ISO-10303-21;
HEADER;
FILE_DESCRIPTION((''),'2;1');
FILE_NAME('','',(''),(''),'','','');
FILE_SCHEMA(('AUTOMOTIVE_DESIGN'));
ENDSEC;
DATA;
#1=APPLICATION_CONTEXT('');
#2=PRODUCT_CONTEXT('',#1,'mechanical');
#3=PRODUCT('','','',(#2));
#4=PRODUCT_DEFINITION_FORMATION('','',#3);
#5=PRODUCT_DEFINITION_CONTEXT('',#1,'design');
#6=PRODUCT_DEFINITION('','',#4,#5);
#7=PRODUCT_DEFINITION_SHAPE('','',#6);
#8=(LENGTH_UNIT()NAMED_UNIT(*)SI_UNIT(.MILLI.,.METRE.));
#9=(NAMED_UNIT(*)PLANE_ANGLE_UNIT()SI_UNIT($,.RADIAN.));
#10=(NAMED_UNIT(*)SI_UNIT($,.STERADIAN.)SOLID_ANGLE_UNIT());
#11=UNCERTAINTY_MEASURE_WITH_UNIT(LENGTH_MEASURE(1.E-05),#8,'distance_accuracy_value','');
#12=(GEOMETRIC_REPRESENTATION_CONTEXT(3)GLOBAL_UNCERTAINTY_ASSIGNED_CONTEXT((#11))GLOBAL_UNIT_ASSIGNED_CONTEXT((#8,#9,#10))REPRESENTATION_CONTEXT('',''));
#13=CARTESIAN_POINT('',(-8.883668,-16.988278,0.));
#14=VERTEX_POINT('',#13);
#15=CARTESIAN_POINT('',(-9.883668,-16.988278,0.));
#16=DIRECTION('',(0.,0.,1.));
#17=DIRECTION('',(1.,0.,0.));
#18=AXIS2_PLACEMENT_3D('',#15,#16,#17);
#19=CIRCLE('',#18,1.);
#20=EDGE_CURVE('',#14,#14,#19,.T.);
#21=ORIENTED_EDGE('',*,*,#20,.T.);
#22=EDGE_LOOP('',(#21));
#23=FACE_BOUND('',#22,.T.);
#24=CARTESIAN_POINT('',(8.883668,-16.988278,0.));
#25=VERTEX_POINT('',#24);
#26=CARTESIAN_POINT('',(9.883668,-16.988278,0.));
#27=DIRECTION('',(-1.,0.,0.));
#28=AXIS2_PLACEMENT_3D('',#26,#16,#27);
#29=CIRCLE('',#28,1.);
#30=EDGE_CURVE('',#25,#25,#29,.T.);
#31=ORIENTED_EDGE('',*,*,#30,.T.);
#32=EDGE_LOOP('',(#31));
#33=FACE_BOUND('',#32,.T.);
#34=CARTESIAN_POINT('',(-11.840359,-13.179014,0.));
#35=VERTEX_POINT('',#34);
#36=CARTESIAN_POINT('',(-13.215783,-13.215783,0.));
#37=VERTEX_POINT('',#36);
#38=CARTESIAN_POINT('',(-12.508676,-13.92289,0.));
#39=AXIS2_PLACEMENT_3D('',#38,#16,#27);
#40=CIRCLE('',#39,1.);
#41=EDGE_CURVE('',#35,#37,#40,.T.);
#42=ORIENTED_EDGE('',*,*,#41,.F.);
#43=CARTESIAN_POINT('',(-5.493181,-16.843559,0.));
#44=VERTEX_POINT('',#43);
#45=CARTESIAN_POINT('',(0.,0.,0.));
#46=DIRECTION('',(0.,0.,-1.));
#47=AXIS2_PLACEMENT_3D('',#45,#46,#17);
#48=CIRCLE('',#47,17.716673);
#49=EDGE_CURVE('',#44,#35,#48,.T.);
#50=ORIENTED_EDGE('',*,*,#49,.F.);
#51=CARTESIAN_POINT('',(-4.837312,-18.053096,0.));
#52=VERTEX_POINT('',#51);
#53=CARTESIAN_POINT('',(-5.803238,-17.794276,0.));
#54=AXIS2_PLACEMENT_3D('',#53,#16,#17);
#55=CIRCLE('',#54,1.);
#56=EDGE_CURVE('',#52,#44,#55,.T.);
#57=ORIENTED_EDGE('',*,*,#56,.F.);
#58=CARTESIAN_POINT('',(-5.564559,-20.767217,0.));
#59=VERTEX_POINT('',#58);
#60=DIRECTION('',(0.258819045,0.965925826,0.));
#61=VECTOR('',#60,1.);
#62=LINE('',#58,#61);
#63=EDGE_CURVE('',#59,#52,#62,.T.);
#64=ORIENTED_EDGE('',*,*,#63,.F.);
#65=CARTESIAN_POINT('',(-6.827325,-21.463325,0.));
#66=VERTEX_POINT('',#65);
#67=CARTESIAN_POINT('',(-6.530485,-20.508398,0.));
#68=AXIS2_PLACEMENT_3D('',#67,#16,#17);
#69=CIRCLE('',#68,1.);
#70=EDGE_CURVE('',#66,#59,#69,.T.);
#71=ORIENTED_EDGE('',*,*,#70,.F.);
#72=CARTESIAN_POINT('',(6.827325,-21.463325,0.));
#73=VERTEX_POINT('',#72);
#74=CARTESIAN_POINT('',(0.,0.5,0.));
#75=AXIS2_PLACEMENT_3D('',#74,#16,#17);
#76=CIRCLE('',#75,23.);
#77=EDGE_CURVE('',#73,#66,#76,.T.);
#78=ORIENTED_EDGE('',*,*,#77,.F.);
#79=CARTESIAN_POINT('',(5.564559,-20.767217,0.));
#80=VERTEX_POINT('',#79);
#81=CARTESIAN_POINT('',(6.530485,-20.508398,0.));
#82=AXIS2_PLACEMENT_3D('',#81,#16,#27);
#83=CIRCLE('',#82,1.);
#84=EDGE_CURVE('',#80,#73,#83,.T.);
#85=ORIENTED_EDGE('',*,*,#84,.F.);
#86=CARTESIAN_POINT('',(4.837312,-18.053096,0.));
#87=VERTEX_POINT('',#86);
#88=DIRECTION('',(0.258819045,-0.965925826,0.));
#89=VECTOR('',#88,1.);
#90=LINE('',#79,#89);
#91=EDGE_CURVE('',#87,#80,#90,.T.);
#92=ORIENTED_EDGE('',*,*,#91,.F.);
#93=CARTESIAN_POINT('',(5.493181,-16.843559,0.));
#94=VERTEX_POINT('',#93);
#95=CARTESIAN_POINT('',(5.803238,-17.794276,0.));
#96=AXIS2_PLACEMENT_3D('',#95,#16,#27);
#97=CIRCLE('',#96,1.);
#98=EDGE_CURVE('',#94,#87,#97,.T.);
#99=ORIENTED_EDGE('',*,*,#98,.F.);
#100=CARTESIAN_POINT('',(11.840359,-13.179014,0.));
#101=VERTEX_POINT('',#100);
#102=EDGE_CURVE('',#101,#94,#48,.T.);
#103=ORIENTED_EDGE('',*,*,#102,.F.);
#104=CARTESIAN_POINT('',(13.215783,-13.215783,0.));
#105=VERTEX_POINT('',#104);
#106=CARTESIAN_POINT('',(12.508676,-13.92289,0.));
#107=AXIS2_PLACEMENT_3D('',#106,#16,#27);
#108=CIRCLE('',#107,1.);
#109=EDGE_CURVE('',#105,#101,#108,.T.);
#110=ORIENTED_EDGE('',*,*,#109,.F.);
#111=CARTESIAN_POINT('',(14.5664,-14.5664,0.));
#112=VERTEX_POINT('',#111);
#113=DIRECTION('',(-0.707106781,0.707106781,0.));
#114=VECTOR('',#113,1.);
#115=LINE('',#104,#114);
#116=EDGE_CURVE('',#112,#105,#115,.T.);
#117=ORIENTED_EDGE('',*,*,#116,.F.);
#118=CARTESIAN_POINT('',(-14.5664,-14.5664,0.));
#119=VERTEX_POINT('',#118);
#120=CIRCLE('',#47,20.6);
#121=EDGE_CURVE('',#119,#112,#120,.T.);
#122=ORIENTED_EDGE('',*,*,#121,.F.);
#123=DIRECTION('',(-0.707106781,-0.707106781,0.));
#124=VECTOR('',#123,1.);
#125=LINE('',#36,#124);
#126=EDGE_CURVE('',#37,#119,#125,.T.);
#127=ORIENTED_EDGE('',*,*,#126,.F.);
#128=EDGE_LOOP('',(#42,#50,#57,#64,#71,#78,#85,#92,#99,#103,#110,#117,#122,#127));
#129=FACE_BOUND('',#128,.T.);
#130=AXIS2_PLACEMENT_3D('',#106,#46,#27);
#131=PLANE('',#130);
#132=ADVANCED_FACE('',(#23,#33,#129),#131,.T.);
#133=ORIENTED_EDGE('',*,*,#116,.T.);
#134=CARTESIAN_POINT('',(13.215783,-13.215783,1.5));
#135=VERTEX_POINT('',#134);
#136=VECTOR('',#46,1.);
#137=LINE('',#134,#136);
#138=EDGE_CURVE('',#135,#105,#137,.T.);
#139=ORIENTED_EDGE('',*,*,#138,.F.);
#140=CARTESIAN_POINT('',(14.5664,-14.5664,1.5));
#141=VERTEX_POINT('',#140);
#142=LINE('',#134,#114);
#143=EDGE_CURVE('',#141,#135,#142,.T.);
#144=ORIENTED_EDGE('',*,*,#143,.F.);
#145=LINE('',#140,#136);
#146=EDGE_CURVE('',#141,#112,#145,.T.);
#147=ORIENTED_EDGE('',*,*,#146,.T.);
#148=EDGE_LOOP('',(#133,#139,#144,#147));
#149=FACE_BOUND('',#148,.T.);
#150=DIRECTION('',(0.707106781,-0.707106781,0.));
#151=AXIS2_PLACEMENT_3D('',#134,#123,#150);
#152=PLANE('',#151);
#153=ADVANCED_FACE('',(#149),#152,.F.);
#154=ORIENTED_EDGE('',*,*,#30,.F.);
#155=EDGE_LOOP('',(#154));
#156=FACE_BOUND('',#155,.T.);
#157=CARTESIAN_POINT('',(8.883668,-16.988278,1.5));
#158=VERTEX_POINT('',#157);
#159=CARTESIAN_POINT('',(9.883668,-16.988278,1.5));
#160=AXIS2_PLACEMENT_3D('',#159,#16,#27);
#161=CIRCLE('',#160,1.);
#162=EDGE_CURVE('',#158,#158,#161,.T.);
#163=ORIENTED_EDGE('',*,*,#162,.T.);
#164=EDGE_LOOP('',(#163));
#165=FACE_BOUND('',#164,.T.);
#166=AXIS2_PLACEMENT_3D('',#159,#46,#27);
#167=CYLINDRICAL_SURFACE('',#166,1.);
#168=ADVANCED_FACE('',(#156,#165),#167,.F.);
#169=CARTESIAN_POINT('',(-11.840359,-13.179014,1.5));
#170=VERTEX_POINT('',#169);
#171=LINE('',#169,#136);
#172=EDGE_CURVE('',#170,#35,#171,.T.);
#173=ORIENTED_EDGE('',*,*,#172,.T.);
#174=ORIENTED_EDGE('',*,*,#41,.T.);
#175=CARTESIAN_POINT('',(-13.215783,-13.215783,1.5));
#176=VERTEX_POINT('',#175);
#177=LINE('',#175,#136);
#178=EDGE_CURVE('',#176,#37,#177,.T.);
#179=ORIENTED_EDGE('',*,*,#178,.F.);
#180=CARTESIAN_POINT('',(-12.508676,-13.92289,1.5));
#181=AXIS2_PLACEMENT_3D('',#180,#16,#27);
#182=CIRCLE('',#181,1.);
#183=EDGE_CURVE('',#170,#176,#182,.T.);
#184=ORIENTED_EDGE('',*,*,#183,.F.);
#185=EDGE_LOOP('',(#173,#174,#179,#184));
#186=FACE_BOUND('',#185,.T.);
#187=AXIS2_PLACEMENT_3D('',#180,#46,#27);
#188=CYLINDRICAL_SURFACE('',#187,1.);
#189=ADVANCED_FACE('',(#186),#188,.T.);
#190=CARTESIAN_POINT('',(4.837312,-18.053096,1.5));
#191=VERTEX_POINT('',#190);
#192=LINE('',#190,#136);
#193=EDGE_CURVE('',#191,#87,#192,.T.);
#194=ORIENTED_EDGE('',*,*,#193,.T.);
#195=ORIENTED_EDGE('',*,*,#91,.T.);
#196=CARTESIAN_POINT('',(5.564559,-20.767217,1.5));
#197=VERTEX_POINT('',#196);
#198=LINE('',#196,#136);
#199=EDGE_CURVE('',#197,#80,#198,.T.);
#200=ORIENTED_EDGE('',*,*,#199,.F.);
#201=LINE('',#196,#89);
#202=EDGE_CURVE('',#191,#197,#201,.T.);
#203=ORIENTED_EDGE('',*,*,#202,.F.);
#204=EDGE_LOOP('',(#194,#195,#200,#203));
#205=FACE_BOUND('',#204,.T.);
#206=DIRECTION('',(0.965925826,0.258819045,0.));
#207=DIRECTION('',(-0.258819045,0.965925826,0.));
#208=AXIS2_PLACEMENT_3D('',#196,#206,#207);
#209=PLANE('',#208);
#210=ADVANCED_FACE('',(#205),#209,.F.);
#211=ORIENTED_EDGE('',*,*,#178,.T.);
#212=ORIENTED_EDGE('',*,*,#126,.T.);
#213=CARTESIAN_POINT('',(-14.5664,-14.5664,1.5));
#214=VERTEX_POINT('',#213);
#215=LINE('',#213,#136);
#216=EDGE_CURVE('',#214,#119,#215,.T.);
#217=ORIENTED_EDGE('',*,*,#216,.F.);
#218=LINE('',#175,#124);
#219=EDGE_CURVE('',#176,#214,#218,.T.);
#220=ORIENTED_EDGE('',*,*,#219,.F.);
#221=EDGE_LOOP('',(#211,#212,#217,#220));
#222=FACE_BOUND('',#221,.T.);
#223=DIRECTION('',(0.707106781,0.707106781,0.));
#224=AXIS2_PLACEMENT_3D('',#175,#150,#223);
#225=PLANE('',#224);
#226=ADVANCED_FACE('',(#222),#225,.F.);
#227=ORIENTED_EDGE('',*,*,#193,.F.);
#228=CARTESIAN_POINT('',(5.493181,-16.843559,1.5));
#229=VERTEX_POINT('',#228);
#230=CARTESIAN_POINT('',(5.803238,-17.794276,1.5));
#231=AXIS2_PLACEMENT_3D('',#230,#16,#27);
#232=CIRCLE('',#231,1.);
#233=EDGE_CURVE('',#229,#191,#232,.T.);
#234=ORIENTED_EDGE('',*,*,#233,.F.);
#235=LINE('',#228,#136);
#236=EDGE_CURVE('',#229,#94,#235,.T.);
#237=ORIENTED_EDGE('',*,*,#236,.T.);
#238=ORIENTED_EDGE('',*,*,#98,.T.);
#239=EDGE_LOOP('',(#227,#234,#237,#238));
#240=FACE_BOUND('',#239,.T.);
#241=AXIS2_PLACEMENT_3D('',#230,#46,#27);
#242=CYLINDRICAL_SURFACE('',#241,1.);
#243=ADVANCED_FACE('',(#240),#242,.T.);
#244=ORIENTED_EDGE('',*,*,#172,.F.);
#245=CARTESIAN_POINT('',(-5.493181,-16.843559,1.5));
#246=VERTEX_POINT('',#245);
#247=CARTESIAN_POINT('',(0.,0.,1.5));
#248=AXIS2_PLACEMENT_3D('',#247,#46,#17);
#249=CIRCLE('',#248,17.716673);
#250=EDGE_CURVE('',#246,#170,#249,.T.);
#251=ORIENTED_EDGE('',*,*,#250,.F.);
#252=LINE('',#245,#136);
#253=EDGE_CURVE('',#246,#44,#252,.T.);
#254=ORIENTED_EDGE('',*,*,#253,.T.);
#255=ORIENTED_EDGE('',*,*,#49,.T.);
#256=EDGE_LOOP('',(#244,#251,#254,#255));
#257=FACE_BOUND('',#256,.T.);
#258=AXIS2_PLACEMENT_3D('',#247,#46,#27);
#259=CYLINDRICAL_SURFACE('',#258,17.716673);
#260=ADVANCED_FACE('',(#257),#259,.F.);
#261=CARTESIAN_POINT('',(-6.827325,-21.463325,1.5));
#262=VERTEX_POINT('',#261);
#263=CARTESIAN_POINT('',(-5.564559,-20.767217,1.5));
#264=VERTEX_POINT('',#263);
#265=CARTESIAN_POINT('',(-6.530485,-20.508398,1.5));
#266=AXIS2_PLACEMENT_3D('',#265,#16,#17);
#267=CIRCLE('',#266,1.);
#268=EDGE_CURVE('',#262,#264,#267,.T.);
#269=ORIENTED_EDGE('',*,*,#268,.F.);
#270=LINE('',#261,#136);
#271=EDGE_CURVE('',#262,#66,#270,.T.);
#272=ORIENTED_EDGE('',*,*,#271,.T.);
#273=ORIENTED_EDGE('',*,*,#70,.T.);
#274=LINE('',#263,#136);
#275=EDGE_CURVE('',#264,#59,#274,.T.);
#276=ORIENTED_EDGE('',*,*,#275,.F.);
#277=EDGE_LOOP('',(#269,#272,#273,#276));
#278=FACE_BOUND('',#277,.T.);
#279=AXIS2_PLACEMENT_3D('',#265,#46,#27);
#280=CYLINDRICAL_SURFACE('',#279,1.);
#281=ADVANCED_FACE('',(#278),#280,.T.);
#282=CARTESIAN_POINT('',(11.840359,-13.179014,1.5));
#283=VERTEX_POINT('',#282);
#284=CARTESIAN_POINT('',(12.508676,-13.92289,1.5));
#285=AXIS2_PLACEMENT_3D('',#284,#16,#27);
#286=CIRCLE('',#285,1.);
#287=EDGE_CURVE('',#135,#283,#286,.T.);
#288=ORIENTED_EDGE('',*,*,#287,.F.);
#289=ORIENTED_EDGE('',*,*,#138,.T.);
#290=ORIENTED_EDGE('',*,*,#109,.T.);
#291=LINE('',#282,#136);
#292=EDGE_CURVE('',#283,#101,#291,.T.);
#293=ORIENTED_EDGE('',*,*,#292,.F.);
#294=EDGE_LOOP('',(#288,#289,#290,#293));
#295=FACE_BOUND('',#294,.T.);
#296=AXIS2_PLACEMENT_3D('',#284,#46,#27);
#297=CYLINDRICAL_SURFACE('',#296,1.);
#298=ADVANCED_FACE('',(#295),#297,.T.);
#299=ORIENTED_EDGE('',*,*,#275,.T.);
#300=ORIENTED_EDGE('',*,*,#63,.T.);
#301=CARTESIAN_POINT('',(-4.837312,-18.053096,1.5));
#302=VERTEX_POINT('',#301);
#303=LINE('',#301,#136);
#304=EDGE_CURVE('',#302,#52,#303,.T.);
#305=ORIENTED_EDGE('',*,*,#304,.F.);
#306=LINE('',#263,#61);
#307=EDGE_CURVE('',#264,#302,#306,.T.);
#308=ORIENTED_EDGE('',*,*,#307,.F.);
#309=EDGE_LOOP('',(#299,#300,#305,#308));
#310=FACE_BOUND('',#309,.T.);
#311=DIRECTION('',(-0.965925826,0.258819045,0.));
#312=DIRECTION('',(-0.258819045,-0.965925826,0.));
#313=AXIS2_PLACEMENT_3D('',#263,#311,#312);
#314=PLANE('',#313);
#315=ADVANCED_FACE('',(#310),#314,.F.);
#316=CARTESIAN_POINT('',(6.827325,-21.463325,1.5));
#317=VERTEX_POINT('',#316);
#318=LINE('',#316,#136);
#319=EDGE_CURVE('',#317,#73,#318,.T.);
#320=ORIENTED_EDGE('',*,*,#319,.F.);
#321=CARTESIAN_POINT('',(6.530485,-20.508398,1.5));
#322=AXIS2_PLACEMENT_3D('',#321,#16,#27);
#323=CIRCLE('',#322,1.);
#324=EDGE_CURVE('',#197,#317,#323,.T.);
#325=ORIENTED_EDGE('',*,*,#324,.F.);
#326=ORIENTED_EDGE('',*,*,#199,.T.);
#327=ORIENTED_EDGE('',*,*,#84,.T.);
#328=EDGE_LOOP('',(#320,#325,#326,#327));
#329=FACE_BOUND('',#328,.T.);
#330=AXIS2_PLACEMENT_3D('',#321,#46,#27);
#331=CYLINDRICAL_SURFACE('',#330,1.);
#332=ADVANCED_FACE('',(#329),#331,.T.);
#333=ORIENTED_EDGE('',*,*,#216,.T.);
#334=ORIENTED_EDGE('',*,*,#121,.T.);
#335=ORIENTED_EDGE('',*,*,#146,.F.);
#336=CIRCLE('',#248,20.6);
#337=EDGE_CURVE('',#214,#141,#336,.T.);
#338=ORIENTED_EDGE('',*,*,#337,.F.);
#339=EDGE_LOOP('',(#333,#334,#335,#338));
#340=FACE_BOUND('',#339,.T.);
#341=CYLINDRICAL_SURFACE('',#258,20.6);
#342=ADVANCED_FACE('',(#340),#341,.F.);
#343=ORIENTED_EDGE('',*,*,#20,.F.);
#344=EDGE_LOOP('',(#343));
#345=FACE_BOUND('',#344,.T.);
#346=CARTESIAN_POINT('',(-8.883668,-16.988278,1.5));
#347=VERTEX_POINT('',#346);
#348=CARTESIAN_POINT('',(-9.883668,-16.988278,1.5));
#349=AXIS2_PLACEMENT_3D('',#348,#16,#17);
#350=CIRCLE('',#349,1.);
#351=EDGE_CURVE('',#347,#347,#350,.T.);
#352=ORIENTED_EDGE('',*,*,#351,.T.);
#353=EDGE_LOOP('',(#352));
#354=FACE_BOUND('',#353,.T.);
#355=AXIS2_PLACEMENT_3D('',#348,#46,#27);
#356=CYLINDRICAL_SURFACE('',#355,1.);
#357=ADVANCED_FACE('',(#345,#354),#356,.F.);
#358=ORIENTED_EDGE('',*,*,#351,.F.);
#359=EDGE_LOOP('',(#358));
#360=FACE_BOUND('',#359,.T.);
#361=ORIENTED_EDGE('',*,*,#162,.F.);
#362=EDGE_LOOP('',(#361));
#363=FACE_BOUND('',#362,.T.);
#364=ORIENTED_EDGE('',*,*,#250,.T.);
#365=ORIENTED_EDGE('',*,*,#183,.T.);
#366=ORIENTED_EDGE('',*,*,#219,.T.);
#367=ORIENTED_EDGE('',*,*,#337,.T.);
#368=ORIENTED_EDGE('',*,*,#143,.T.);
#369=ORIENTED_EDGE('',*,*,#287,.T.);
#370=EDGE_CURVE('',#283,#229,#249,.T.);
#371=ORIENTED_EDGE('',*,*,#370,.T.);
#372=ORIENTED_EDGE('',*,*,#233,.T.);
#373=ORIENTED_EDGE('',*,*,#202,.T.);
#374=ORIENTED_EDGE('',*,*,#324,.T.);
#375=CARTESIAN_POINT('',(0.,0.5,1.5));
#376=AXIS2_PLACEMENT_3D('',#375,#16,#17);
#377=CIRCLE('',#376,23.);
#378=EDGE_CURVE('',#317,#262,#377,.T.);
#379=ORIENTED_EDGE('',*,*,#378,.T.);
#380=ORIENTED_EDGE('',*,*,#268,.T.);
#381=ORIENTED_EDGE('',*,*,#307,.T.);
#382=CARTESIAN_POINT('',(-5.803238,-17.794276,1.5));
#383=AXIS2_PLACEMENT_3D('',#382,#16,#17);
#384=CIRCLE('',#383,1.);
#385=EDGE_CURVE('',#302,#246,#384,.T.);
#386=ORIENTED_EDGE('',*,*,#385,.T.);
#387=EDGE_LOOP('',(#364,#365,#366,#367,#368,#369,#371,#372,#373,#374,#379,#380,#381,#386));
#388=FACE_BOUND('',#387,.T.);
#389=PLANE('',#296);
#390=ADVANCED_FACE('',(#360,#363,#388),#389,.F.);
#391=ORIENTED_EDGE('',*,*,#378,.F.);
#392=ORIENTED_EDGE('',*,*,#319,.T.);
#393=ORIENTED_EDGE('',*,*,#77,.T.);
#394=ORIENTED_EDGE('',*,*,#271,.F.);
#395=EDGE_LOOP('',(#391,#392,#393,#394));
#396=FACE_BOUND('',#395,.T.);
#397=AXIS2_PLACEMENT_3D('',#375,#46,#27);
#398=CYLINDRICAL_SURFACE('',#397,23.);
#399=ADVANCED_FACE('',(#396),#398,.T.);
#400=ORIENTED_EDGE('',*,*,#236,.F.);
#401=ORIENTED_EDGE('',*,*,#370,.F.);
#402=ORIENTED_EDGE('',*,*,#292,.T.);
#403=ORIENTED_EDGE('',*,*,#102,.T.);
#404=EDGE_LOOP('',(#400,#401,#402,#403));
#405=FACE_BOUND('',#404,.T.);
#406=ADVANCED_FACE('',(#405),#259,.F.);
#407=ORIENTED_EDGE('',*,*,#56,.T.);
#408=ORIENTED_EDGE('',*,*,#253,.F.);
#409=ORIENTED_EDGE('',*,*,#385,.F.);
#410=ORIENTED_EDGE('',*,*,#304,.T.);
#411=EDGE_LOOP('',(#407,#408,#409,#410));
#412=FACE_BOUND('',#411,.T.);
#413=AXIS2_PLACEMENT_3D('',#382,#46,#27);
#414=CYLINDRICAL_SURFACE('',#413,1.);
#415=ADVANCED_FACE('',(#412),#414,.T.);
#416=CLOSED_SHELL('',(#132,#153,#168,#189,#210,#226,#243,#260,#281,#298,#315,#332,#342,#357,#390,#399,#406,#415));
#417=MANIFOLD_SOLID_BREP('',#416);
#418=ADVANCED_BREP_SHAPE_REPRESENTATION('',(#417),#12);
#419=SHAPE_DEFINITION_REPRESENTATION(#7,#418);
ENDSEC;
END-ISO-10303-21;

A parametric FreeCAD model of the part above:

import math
import FreeCAD as App
import Part
import Sketcher

V = App.Vector
Q = App.Units.Quantity

doc = App.newDocument("Part")
body = doc.addObject("PartDesign::Body", "Body")

sketch1 = body.newObject("Sketcher::SketchObject", "Sketch")
sketch1.AttachmentSupport = (doc.getObject("XY_Plane"), [""])
sketch1.MapMode = "FlatFace"
sketch1.addGeometry(Part.LineSegment(V(4.8, -18.1, 0), V(5.6, -20.8, 0)), False)
sketch1.addGeometry(Part.ArcOfCircle(Part.Circle(V(6.5, -20.5, 0), V(0, 0, 1), 1), math.radians(-165), math.radians(-73)), False)
sketch1.addGeometry(Part.ArcOfCircle(Part.Circle(V(0, 0.5, 0), V(0, 0, 1), 23), math.radians(-73), math.radians(253)), False)
sketch1.addGeometry(Part.ArcOfCircle(Part.Circle(V(-6.5, -20.5, 0), V(0, 0, 1), 1), math.radians(-107), math.radians(-15)), False)
sketch1.addGeometry(Part.LineSegment(V(-5.6, -20.8, 0), V(-4.8, -18.1, 0)), False)
sketch1.addGeometry(Part.ArcOfCircle(Part.Circle(V(-5.8, -17.8, 0), V(0, 0, 1), 1), math.radians(-15), math.radians(72)), False)
sketch1.addGeometry(Part.ArcOfCircle(Part.Circle(V(0, 0, 0), V(0, 0, 1), 17.7), math.radians(-132), math.radians(-108)), False)
sketch1.addGeometry(Part.ArcOfCircle(Part.Circle(V(-12.5, -13.9, 0), V(0, 0, 1), 1), math.radians(48), math.radians(135)), False)
sketch1.addGeometry(Part.LineSegment(V(-13.2, -13.2, 0), V(-14.6, -14.6, 0)), False)
sketch1.addGeometry(Part.ArcOfCircle(Part.Circle(V(0, 0, 0), V(0, 0, 1), 20.6), math.radians(-45), math.radians(225)), False)
sketch1.addGeometry(Part.LineSegment(V(14.6, -14.6, 0), V(13.2, -13.2, 0)), False)
sketch1.addGeometry(Part.ArcOfCircle(Part.Circle(V(12.5, -13.9, 0), V(0, 0, 1), 1), math.radians(45), math.radians(132)), False)
sketch1.addGeometry(Part.ArcOfCircle(Part.Circle(V(0, 0, 0), V(0, 0, 1), 17.7), math.radians(-72), math.radians(-48)), False)
sketch1.addGeometry(Part.ArcOfCircle(Part.Circle(V(5.8, -17.8, 0), V(0, 0, 1), 1), math.radians(108), math.radians(195)), False)
sketch1.addGeometry(Part.Circle(V(9.9, -17, 0), V(0, 0, 1), 1), False)
sketch1.addGeometry(Part.Circle(V(-9.9, -17, 0), V(0, 0, 1), 1), False)
sketch1.addConstraint(Sketcher.Constraint("Tangent", 0, 2, 1, 1))
sketch1.addConstraint(Sketcher.Constraint("Tangent", 1, 2, 2, 1))
sketch1.addConstraint(Sketcher.Constraint("Tangent", 2, 2, 3, 1))
sketch1.addConstraint(Sketcher.Constraint("Tangent", 3, 2, 4, 1))
sketch1.addConstraint(Sketcher.Constraint("Tangent", 4, 2, 5, 1))
sketch1.addConstraint(Sketcher.Constraint("Tangent", 5, 2, 6, 2))
sketch1.addConstraint(Sketcher.Constraint("Tangent", 6, 1, 7, 1))
sketch1.addConstraint(Sketcher.Constraint("Tangent", 7, 2, 8, 1))
sketch1.addConstraint(Sketcher.Constraint("Coincident", 8, 2, 9, 2))
sketch1.addConstraint(Sketcher.Constraint("Coincident", 9, 1, 10, 1))
sketch1.addConstraint(Sketcher.Constraint("Tangent", 10, 2, 11, 1))
sketch1.addConstraint(Sketcher.Constraint("Tangent", 11, 2, 12, 2))
sketch1.addConstraint(Sketcher.Constraint("Tangent", 12, 1, 13, 1))
sketch1.addConstraint(Sketcher.Constraint("Tangent", 13, 2, 0, 1))
sketch1.addConstraint(Sketcher.Constraint("Coincident", 6, 3, -1, 1))
sketch1.addConstraint(Sketcher.Constraint("Coincident", 9, 3, -1, 1))
sketch1.addConstraint(Sketcher.Constraint("Coincident", 12, 3, -1, 1))
sketch1.addConstraint(Sketcher.Constraint("Equal", 1, 3))
sketch1.addConstraint(Sketcher.Constraint("Equal", 3, 5))
sketch1.addConstraint(Sketcher.Constraint("Equal", 5, 7))
sketch1.addConstraint(Sketcher.Constraint("Equal", 7, 11))
sketch1.addConstraint(Sketcher.Constraint("Equal", 6, 12))
sketch1.addConstraint(Sketcher.Constraint("Equal", 11, 13))
sketch1.addConstraint(Sketcher.Constraint("Equal", 13, 14))
sketch1.addConstraint(Sketcher.Constraint("Equal", 14, 15))
sketch1.addConstraint(Sketcher.Constraint("Symmetric", 1, 3, 3, 3, -2))
sketch1.addConstraint(Sketcher.Constraint("Symmetric", 14, 3, 15, 3, -2))
sketch1.addConstraint(Sketcher.Constraint("Symmetric", 7, 2, 10, 2, -2))
sketch1.addConstraint(Sketcher.Constraint("Perpendicular", 8, 10))
sketch1.addConstraint(Sketcher.Constraint("Horizontal", 5, 3, 13, 3))
sketch1.addConstraint(Sketcher.Constraint("Diameter", 14, Q("2 mm")))
sketch1.addConstraint(Sketcher.Constraint("Radius", 2, Q("23 mm")))
sketch1.addConstraint(Sketcher.Constraint("Radius", 9, Q("20.6 mm")))
sketch1.addConstraint(Sketcher.Constraint("Angle", 0, Q("-75 deg")))
sketch1.addConstraint(Sketcher.Constraint("DistanceY", -1, 1, 2, 3, Q("0.5 mm")))
sketch1.addConstraint(Sketcher.Constraint("Radius", 6, Q("17.716673 mm")))
sketch1.addConstraint(Sketcher.Constraint("DistanceY", 13, 3, 14, 3, Q("0.805999 mm")))
sketch1.addConstraint(Sketcher.Constraint("DistanceX", 8, 2, -1, 1, Q("14.5664 mm")))
sketch1.addConstraint(Sketcher.Constraint("DistanceX", 1, 3, 10, 2, Q("6.685298 mm")))
sketch1.addConstraint(Sketcher.Constraint("DistanceX", 14, 3, 11, 3, Q("2.625009 mm")))
pad1 = body.newObject("PartDesign::Pad", "Pad")
pad1.Profile = sketch1
pad1.Length = 1.5

doc.recompute()
